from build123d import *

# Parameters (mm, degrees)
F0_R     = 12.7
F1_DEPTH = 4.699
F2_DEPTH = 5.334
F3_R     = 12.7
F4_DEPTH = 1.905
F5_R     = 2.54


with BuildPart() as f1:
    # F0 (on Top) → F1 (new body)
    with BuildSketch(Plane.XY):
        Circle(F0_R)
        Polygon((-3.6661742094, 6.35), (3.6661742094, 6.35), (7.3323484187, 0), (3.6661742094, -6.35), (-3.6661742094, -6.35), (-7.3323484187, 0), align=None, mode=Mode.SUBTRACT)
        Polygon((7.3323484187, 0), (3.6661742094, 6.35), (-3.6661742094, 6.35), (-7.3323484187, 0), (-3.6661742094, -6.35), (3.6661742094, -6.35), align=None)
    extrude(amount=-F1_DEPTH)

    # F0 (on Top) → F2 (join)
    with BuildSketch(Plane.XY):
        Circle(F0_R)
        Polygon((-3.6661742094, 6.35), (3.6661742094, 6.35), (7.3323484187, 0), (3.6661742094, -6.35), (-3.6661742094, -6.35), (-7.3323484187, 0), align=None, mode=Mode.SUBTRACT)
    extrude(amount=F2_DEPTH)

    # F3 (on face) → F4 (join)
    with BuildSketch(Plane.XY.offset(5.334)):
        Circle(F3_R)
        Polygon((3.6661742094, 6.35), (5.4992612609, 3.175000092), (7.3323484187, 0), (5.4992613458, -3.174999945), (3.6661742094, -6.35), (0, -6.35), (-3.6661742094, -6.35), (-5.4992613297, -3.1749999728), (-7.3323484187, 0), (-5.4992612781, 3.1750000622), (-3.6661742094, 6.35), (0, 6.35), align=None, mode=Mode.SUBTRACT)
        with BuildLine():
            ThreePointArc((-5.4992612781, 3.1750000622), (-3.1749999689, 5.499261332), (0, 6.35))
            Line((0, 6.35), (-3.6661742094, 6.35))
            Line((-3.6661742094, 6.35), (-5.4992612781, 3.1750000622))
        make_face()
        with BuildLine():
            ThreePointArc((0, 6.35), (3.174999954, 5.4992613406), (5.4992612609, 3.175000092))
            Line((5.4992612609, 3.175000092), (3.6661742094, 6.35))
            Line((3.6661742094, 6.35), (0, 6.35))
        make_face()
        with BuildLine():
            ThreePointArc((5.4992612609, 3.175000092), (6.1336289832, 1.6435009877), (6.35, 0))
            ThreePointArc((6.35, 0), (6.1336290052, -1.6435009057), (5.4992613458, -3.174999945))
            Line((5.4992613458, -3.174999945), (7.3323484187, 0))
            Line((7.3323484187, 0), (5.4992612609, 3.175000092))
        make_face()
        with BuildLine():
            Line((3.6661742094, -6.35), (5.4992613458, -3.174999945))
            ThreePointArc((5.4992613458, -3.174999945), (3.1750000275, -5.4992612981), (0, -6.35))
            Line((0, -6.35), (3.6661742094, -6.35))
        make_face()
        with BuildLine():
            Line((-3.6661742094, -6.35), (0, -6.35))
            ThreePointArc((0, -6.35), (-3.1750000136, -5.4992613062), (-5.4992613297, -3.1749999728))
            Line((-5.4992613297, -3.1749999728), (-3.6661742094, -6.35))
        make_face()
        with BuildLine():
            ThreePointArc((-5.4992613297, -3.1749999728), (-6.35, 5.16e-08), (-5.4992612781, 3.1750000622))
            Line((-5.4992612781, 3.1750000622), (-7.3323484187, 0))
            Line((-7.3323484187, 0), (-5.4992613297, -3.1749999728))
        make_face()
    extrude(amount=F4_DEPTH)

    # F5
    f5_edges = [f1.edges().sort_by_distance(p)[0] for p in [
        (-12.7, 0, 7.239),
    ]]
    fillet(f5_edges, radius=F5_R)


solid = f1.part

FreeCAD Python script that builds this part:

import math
import FreeCAD as App
import Part
import Sketcher
from FreeCAD import Vector
Q = App.Units.Quantity


def edges_at(feature, points):
    """Names of the edges that pass closest to the given points."""
    edges = feature.Shape.Edges
    near = lambda p: min(range(len(edges)), key=lambda i: edges[i].distToShape(Part.Vertex(*p))[0])
    return sorted({f"Edge{near(p) + 1}" for p in points})


def add_polygon(sketch, points):
    """Adds a closed chain of lines whose ends are joined by coincident constraints."""
    first, n = sketch.GeometryCount, len(points)
    for a, b in zip(points, points[1:] + points[:1]):
        sketch.addGeometry(Part.LineSegment(App.Vector(*a, 0), App.Vector(*b, 0)), False)
    for i in range(n):
        sketch.addConstraint(Sketcher.Constraint("Coincident", first + i, 2, first + (i + 1) % n, 1))

doc = App.newDocument("Part")
body = doc.addObject("PartDesign::Body", "Body")

# Sketch on XY plane
sketch1 = body.newObject("Sketcher::SketchObject", "Sketch")
sketch1.AttachmentSupport = (doc.getObject("XY_Plane"), [""])
sketch1.MapMode = "FlatFace"
sketch1.addGeometry(Part.Circle(Vector(0, 0, 0), Vector(0, 0, 1), 12.7), False)
sketch1.addConstraint([
    Sketcher.Constraint("Coincident", 0, 3, -1, 1),
    Sketcher.Constraint("Diameter", 0, Q("1 in")),
])
pad1 = body.newObject("PartDesign::Pad", "Pad")
pad1.Profile = sketch1
pad1.Length = Q("0.185 in")
pad1.Reversed = True

# Sketch on XY plane
sketch2 = body.newObject("Sketcher::SketchObject", "Sketch001")
sketch2.AttachmentSupport = (doc.getObject("XY_Plane"), [""])
sketch2.MapMode = "FlatFace"
sketch2.addGeometry(Part.Circle(Vector(0, 0, 0), Vector(0, 0, 1), 12.7), False)  # 0
add_polygon(sketch2, [(-7.332348, 0), (-3.666174, 6.35), (3.666174, 6.35), (7.332348, 0), (3.666174, -6.35), (-3.666174, -6.35)])  # lines 1-6
sketch2.addConstraint([
    Sketcher.Constraint("Horizontal", 2),
    Sketcher.Constraint("Horizontal", 5),
    Sketcher.Constraint("Coincident", 0, 3, -1, 1),
    Sketcher.Constraint("Symmetric", 1, 2, 4, 2, -1, 1),
    Sketcher.Constraint("Symmetric", 3, 2, 6, 2, -1, 1),
    Sketcher.Constraint("PointOnObject", 3, 2, -1),
    Sketcher.Constraint("Parallel", 3, 6),
    Sketcher.Constraint("Vertical", 2, 2, 4, 2),
    Sketcher.Constraint("Diameter", 0, Q("1 in")),
    Sketcher.Constraint("Angle", 1, Q("60 deg")),
    Sketcher.Constraint("DistanceY", 4, 2, 2, 2, Q("0.5 in")),
    Sketcher.Constraint("DistanceX", 2, 1, 2, 2, Q("7.332348 mm")),
])
pad2 = body.newObject("PartDesign::Pad", "Pad001")
pad2.Profile = sketch2
pad2.Length = Q("0.21 in")

# Sketch on XY plane
sketch3 = body.newObject("Sketcher::SketchObject", "Sketch002")
sketch3.AttachmentSupport = (doc.getObject("XY_Plane"), [""])
sketch3.MapMode = "FlatFace"
sketch3.AttachmentOffset = App.Placement(Vector(0, 0, 0.21 * 25.4), App.Rotation())
sketch3.addGeometry([
    Part.Circle(Vector(0, 0, 0), Vector(0, 0, 1), 12.7),  # 0
    Part.ArcOfCircle(Part.Circle(Vector(0, 0, 0), Vector(0, 0, 1), 6.35), math.radians(90), math.radians(149.999999)),  # 1
    Part.ArcOfCircle(Part.Circle(Vector(0, 0, 0), Vector(0, 0, 1), 6.35), math.radians(30.000001), math.radians(90)),  # 2
    Part.ArcOfCircle(Part.Circle(Vector(0, 0, 0), Vector(0, 0, 1), 6.35), math.radians(0), math.radians(30.000001)),  # 3
    Part.ArcOfCircle(Part.Circle(Vector(0, 0, 0), Vector(0, 0, 1), 6.35), math.radians(-90), math.radians(0)),  # 4
    Part.ArcOfCircle(Part.Circle(Vector(0, 0, 0), Vector(0, 0, 1), 6.35), math.radians(-150), math.radians(-90)),  # 5
    Part.ArcOfCircle(Part.Circle(Vector(0, 0, 0), Vector(0, 0, 1), 6.35), math.radians(149.999999), math.radians(210)),  # 6
], False)
sketch3.addConstraint([
    Sketcher.Constraint("Tangent", 1, 1, 2, 2),
    Sketcher.Constraint("Tangent", 2, 1, 3, 2),
    Sketcher.Constraint("Tangent", 3, 1, 4, 2),
    Sketcher.Constraint("Tangent", 4, 1, 5, 2),
    Sketcher.Constraint("Tangent", 5, 1, 6, 2),
    Sketcher.Constraint("Tangent", 6, 1, 1, 2),
    Sketcher.Constraint("Coincident", 0, 3, -1, 1),
    Sketcher.Constraint("Coincident", 1, 3, -1, 1),
    Sketcher.Constraint("Coincident", 3, 3, -1, 1),
    Sketcher.Constraint("Equal", 3, 4),
    Sketcher.Constraint("PointOnObject", 1, 1, -2),
    Sketcher.Constraint("PointOnObject", 3, 1, -1),
    Sketcher.Constraint("PointOnObject", 4, 1, -2),
    Sketcher.Constraint("Horizontal", 2, 1, 6, 1),
    Sketcher.Constraint("Vertical", 5, 1, 6, 1),
    Sketcher.Constraint("Diameter", 0, Q("1 in")),
    Sketcher.Constraint("Radius", 1, Q("0.25 in")),
    Sketcher.Constraint("DistanceY", -1, 1, 2, 1, Q("0.125 in")),
])
pad3 = body.newObject("PartDesign::Pad", "Pad002")
pad3.Profile = sketch3
pad3.Length = Q("0.075 in")
doc.recompute()

fillet = body.newObject("PartDesign::Fillet", "Fillet")
fillet.Base = (pad3, edges_at(pad3, [(-12.7, 0, 7.239)]))
fillet.Radius = Q("0.1 in")

doc.recompute()
